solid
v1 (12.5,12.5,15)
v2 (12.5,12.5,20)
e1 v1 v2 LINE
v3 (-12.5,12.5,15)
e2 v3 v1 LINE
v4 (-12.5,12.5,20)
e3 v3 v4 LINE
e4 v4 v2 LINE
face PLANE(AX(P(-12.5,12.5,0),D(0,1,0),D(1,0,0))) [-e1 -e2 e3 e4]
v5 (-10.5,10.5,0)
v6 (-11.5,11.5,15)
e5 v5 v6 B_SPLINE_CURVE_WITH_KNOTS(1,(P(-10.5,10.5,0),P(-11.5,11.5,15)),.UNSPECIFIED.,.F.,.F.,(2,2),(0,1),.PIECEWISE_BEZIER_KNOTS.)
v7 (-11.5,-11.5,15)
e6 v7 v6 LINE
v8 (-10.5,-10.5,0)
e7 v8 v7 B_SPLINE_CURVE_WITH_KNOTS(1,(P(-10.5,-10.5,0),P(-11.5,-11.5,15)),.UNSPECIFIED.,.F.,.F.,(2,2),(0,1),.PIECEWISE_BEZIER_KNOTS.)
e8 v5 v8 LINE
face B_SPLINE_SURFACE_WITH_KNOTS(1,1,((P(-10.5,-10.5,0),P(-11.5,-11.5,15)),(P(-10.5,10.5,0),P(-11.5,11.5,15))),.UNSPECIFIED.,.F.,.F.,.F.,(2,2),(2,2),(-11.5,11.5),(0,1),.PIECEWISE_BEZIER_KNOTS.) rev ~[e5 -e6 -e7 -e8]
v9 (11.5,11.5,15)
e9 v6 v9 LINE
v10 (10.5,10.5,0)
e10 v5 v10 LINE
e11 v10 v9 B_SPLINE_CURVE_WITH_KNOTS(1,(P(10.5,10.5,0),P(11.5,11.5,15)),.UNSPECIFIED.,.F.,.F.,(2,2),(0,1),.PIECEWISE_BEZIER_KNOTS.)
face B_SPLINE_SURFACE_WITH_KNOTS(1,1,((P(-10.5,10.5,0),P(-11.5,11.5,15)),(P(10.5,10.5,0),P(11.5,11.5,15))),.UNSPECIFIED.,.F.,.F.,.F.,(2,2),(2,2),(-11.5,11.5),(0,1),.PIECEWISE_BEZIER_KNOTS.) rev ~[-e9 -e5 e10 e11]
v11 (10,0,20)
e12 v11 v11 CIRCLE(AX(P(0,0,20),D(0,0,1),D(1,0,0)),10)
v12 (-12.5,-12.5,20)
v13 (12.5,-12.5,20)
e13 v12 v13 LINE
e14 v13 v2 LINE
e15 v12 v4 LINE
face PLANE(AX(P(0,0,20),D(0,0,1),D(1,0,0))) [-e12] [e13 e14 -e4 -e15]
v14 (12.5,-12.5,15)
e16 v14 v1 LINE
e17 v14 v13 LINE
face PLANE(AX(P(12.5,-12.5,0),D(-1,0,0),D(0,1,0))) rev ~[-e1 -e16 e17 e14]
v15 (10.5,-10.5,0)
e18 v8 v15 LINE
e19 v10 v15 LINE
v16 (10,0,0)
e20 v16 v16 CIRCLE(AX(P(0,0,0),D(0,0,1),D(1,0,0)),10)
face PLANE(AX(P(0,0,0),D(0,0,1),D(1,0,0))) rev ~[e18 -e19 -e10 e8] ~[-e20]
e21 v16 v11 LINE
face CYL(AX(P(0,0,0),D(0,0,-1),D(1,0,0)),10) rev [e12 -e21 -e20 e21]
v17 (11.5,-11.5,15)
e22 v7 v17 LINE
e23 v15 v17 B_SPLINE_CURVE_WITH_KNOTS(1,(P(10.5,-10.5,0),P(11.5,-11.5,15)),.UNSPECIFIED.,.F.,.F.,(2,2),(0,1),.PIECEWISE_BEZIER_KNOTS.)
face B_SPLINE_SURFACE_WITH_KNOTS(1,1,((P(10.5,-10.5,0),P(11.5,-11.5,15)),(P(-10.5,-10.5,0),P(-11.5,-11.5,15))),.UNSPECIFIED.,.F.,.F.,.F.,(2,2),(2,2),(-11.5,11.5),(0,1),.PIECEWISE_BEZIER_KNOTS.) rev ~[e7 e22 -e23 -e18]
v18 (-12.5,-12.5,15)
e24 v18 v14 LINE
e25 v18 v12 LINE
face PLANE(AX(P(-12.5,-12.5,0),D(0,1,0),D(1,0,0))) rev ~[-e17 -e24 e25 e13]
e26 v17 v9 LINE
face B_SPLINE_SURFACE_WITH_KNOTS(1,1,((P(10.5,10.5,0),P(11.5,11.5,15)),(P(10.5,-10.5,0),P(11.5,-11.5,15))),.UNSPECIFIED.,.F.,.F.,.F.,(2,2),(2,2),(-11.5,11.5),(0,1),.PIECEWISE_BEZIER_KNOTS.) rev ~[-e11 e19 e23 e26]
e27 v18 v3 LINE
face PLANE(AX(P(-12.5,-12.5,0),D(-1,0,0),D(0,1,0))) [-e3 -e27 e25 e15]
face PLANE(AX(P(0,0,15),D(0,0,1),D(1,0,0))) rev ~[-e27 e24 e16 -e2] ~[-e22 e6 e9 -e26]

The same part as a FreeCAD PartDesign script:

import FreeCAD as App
import Part
import Sketcher
from FreeCAD import Vector

doc = App.newDocument("Part")
params = doc.addObject("Spreadsheet::Sheet", "Params")
for row, (alias, value) in enumerate([
    ("sketch1_width", "25 mm"),
    ("pad1_length", "15 mm"),
    ("sketch2_width", "21 mm"),
    ("sketch3_width", "23 mm"),
    ("sketch4_width", "25 mm"),
    ("pad2_length", "20 mm"),
    ("sketch5_diameter", "20 mm"),
    ("pocket1_length", "20 mm"),
], start=1):
    params.set(f"A{row}", alias)
    params.set(f"B{row}", "=" + value)
    params.setAlias(f"B{row}", alias)

body = doc.addObject("PartDesign::Body", "Body")

sketch1 = body.newObject("Sketcher::SketchObject", "Sketch")
sketch1.AttachmentSupport = (doc.getObject("XY_Plane"), [""])
sketch1.MapMode = "FlatFace"
sketch1.addGeometry([
    Part.LineSegment(Vector(-12, 12, 0), Vector(-12, -12, 0)),
    Part.LineSegment(Vector(-12, -12, 0), Vector(12, -12, 0)),
    Part.LineSegment(Vector(12, -12, 0), Vector(12, 12, 0)),
    Part.LineSegment(Vector(12, 12, 0), Vector(-12, 12, 0)),
], False)
sketch1.addConstraint([
    Sketcher.Constraint("Coincident", 0, 2, 1, 1),
    Sketcher.Constraint("Coincident", 1, 2, 2, 1),
    Sketcher.Constraint("Coincident", 2, 2, 3, 1),
    Sketcher.Constraint("Coincident", 3, 2, 0, 1),
    Sketcher.Constraint("Vertical", 0),
    Sketcher.Constraint("Horizontal", 1),
    Sketcher.Constraint("Vertical", 2),
    Sketcher.Constraint("Horizontal", 3),
    Sketcher.Constraint("Symmetric", 0, 2, 2, 2, -1, 1),
    Sketcher.Constraint("Equal", 3, 0),
    Sketcher.Constraint("DistanceX", 1, 1, 1, 2, 25.0),
])
sketch1.setExpression("Constraints[10]", "Params.sketch1_width")
pad1 = body.newObject("PartDesign::Pad", "Pad")
pad1.Profile = sketch1
pad1.setExpression("Length", "Params.pad1_length")

sketch2 = body.newObject("Sketcher::SketchObject", "Sketch001")
sketch2.AttachmentSupport = (doc.getObject("XY_Plane"), [""])
sketch2.MapMode = "FlatFace"
sketch2.addGeometry([
    Part.LineSegment(Vector(-10, -10, 0), Vector(-10, 10, 0)),
    Part.LineSegment(Vector(-10, 10, 0), Vector(10, 10, 0)),
    Part.LineSegment(Vector(10, 10, 0), Vector(10, -10, 0)),
    Part.LineSegment(Vector(10, -10, 0), Vector(-10, -10, 0)),
], False)
sketch2.addConstraint([
    Sketcher.Constraint("Coincident", 0, 2, 1, 1),
    Sketcher.Constraint("Coincident", 1, 2, 2, 1),
    Sketcher.Constraint("Coincident", 2, 2, 3, 1),
    Sketcher.Constraint("Coincident", 3, 2, 0, 1),
    Sketcher.Constraint("Vertical", 0),
    Sketcher.Constraint("Horizontal", 1),
    Sketcher.Constraint("Vertical", 2),
    Sketcher.Constraint("Horizontal", 3),
    Sketcher.Constraint("Symmetric", 0, 2, 2, 2, -1, 1),
    Sketcher.Constraint("Equal", 3, 0),
    Sketcher.Constraint("DistanceX", 1, 1, 1, 2, 21.0),
])
sketch2.setExpression("Constraints[10]", "Params.sketch2_width")

sketch3 = body.newObject("Sketcher::SketchObject", "Sketch002")
sketch3.AttachmentSupport = (doc.getObject("XY_Plane"), [""])
sketch3.MapMode = "FlatFace"
sketch3.AttachmentOffset = App.Placement(Vector(0, 0, 15), App.Rotation())
sketch3.addGeometry([
    Part.LineSegment(Vector(-12, 12, 0), Vector(-12, -12, 0)),
    Part.LineSegment(Vector(-12, -12, 0), Vector(12, -12, 0)),
    Part.LineSegment(Vector(12, -12, 0), Vector(12, 12, 0)),
    Part.LineSegment(Vector(12, 12, 0), Vector(-12, 12, 0)),
], False)
sketch3.addConstraint([
    Sketcher.Constraint("Coincident", 0, 2, 1, 1),
    Sketcher.Constraint("Coincident", 1, 2, 2, 1),
    Sketcher.Constraint("Coincident", 2, 2, 3, 1),
    Sketcher.Constraint("Coincident", 3, 2, 0, 1),
    Sketcher.Constraint("Vertical", 0),
    Sketcher.Constraint("Horizontal", 1),
    Sketcher.Constraint("Vertical", 2),
    Sketcher.Constraint("Horizontal", 3),
    Sketcher.Constraint("Symmetric", 0, 2, 2, 2, -1, 1),
    Sketcher.Constraint("Equal", 3, 0),
    Sketcher.Constraint("DistanceX", 1, 1, 1, 2, 23.0),
])
sketch3.setExpression("Constraints[10]", "Params.sketch3_width")

subtractiveloft = body.newObject("PartDesign::SubtractiveLoft", "SubtractiveLoft")
subtractiveloft.Profile = sketch2
subtractiveloft.Sections = [sketch3]
body2 = doc.addObject("PartDesign::Body", "Body001")

sketch4 = body2.newObject("Sketcher::SketchObject", "Sketch003")
sketch4.AttachmentSupport = (doc.getObject("XY_Plane001"), [""])
sketch4.MapMode = "FlatFace"
sketch4.addGeometry([
    Part.LineSegment(Vector(-12, 12, 0), Vector(-12, -12, 0)),
    Part.LineSegment(Vector(-12, -12, 0), Vector(12, -12, 0)),
    Part.LineSegment(Vector(12, -12, 0), Vector(12, 12, 0)),
    Part.LineSegment(Vector(12, 12, 0), Vector(-12, 12, 0)),
], False)
sketch4.addConstraint([
    Sketcher.Constraint("Coincident", 0, 2, 1, 1),
    Sketcher.Constraint("Coincident", 1, 2, 2, 1),
    Sketcher.Constraint("Coincident", 2, 2, 3, 1),
    Sketcher.Constraint("Coincident", 3, 2, 0, 1),
    Sketcher.Constraint("Vertical", 0),
    Sketcher.Constraint("Horizontal", 1),
    Sketcher.Constraint("Vertical", 2),
    Sketcher.Constraint("Horizontal", 3),
    Sketcher.Constraint("Symmetric", 0, 2, 2, 2, -1, 1),
    Sketcher.Constraint("Equal", 3, 0),
    Sketcher.Constraint("DistanceX", 1, 1, 1, 2, 25.0),
])
sketch4.setExpression("Constraints[10]", "Params.sketch4_width")
pad2 = body2.newObject("PartDesign::Pad", "Pad001")
pad2.Profile = sketch4
pad2.setExpression("Length", "Params.pad2_length")
doc.recompute()

boolean = body2.newObject("PartDesign::Boolean", "Boolean")
boolean.Type = "Cut"
boolean.addObjects([body])

sketch5 = body2.newObject("Sketcher::SketchObject", "Sketch004")
sketch5.AttachmentSupport = (doc.getObject("XY_Plane001"), [""])
sketch5.MapMode = "FlatFace"
sketch5.addGeometry(Part.Circle(Vector(0, 0, 0), Vector(0, 0, 1), 10), False)
sketch5.addConstraint([
    Sketcher.Constraint("Coincident", 0, 3, -1, 1),
    Sketcher.Constraint("Diameter", 0, 20.0),
])
sketch5.setExpression("Constraints[1]", "Params.sketch5_diameter")
pocket1 = body2.newObject("PartDesign::Pocket", "Pocket")
pocket1.Profile = sketch5
pocket1.setExpression("Length", "Params.pocket1_length")
pocket1.Reversed = True

doc.recompute()
